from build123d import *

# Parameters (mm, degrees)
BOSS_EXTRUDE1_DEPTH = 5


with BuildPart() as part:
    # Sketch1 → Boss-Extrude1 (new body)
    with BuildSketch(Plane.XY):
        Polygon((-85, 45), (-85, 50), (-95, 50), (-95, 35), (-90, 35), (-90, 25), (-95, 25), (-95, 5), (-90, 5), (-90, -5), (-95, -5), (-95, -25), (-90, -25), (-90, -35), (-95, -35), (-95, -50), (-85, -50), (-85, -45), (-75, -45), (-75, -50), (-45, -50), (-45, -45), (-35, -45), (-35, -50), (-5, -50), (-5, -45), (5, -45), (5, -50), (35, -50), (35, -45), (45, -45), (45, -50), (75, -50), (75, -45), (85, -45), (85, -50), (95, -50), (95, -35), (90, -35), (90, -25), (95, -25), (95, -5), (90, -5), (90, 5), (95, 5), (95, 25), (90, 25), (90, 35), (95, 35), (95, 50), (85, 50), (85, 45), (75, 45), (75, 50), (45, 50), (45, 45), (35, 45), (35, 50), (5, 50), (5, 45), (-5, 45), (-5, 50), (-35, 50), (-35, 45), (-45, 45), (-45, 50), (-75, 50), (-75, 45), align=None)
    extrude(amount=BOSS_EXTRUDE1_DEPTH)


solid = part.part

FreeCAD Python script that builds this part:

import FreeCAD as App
import Part
import Sketcher

doc = App.newDocument("Part")
body = doc.addObject("PartDesign::Body", "Body")

sketch1 = body.newObject("Sketcher::SketchObject", "Sketch")
sketch1.AttachmentSupport = (doc.getObject("XY_Plane"), [""])
sketch1.MapMode = "FlatFace"
sketch1.addGeometry(Part.LineSegment(App.Vector(-85, 45, 0), App.Vector(-85, 50, 0)), False)
sketch1.addGeometry(Part.LineSegment(App.Vector(-85, 50, 0), App.Vector(-95, 50, 0)), False)
sketch1.addGeometry(Part.LineSegment(App.Vector(-95, 50, 0), App.Vector(-95, 35, 0)), False)
sketch1.addGeometry(Part.LineSegment(App.Vector(-95, 35, 0), App.Vector(-90, 35, 0)), False)
sketch1.addGeometry(Part.LineSegment(App.Vector(-90, 35, 0), App.Vector(-90, 25, 0)), False)
sketch1.addGeometry(Part.LineSegment(App.Vector(-90, 25, 0), App.Vector(-95, 25, 0)), False)
sketch1.addGeometry(Part.LineSegment(App.Vector(-95, 25, 0), App.Vector(-95, 5, 0)), False)
sketch1.addGeometry(Part.LineSegment(App.Vector(-95, 5, 0), App.Vector(-90, 5, 0)), False)
sketch1.addGeometry(Part.LineSegment(App.Vector(-90, 5, 0), App.Vector(-90, -5, 0)), False)
sketch1.addGeometry(Part.LineSegment(App.Vector(-90, -5, 0), App.Vector(-95, -5, 0)), False)
sketch1.addGeometry(Part.LineSegment(App.Vector(-95, -5, 0), App.Vector(-95, -25, 0)), False)
sketch1.addGeometry(Part.LineSegment(App.Vector(-95, -25, 0), App.Vector(-90, -25, 0)), False)
sketch1.addGeometry(Part.LineSegment(App.Vector(-90, -25, 0), App.Vector(-90, -35, 0)), False)
sketch1.addGeometry(Part.LineSegment(App.Vector(-90, -35, 0), App.Vector(-95, -35, 0)), False)
sketch1.addGeometry(Part.LineSegment(App.Vector(-95, -35, 0), App.Vector(-95, -50, 0)), False)
sketch1.addGeometry(Part.LineSegment(App.Vector(-95, -50, 0), App.Vector(-85, -50, 0)), False)
sketch1.addGeometry(Part.LineSegment(App.Vector(-85, -50, 0), App.Vector(-85, -45, 0)), False)
sketch1.addGeometry(Part.LineSegment(App.Vector(-85, -45, 0), App.Vector(-75, -45, 0)), False)
sketch1.addGeometry(Part.LineSegment(App.Vector(-75, -45, 0), App.Vector(-75, -50, 0)), False)
sketch1.addGeometry(Part.LineSegment(App.Vector(-75, -50, 0), App.Vector(-45, -50, 0)), False)
sketch1.addGeometry(Part.LineSegment(App.Vector(-45, -50, 0), App.Vector(-45, -45, 0)), False)
sketch1.addGeometry(Part.LineSegment(App.Vector(-45, -45, 0), App.Vector(-35, -45, 0)), False)
sketch1.addGeometry(Part.LineSegment(App.Vector(-35, -45, 0), App.Vector(-35, -50, 0)), False)
sketch1.addGeometry(Part.LineSegment(App.Vector(-35, -50, 0), App.Vector(-5, -50, 0)), False)
sketch1.addGeometry(Part.LineSegment(App.Vector(-5, -50, 0), App.Vector(-5, -45, 0)), False)
sketch1.addGeometry(Part.LineSegment(App.Vector(-5, -45, 0), App.Vector(5, -45, 0)), False)
sketch1.addGeometry(Part.LineSegment(App.Vector(5, -45, 0), App.Vector(5, -50, 0)), False)
sketch1.addGeometry(Part.LineSegment(App.Vector(5, -50, 0), App.Vector(35, -50, 0)), False)
sketch1.addGeometry(Part.LineSegment(App.Vector(35, -50, 0), App.Vector(35, -45, 0)), False)
sketch1.addGeometry(Part.LineSegment(App.Vector(35, -45, 0), App.Vector(45, -45, 0)), False)
sketch1.addGeometry(Part.LineSegment(App.Vector(45, -45, 0), App.Vector(45, -50, 0)), False)
sketch1.addGeometry(Part.LineSegment(App.Vector(45, -50, 0), App.Vector(75, -50, 0)), False)
sketch1.addGeometry(Part.LineSegment(App.Vector(75, -50, 0), App.Vector(75, -45, 0)), False)
sketch1.addGeometry(Part.LineSegment(App.Vector(75, -45, 0), App.Vector(85, -45, 0)), False)
sketch1.addGeometry(Part.LineSegment(App.Vector(85, -45, 0), App.Vector(85, -50, 0)), False)
sketch1.addGeometry(Part.LineSegment(App.Vector(85, -50, 0), App.Vector(95, -50, 0)), False)
sketch1.addGeometry(Part.LineSegment(App.Vector(95, -50, 0), App.Vector(95, -35, 0)), False)
sketch1.addGeometry(Part.LineSegment(App.Vector(95, -35, 0), App.Vector(90, -35, 0)), False)
sketch1.addGeometry(Part.LineSegment(App.Vector(90, -35, 0), App.Vector(90, -25, 0)), False)
sketch1.addGeometry(Part.LineSegment(App.Vector(90, -25, 0), App.Vector(95, -25, 0)), False)
sketch1.addGeometry(Part.LineSegment(App.Vector(95, -25, 0), App.Vector(95, -5, 0)), False)
sketch1.addGeometry(Part.LineSegment(App.Vector(95, -5, 0), App.Vector(90, -5, 0)), False)
sketch1.addGeometry(Part.LineSegment(App.Vector(90, -5, 0), App.Vector(90, 5, 0)), False)
sketch1.addGeometry(Part.LineSegment(App.Vector(90, 5, 0), App.Vector(95, 5, 0)), False)
sketch1.addGeometry(Part.LineSegment(App.Vector(95, 5, 0), App.Vector(95, 25, 0)), False)
sketch1.addGeometry(Part.LineSegment(App.Vector(95, 25, 0), App.Vector(90, 25, 0)), False)
sketch1.addGeometry(Part.LineSegment(App.Vector(90, 25, 0), App.Vector(90, 35, 0)), False)
sketch1.addGeometry(Part.LineSegment(App.Vector(90, 35, 0), App.Vector(95, 35, 0)), False)
sketch1.addGeometry(Part.LineSegment(App.Vector(95, 35, 0), App.Vector(95, 50, 0)), False)
sketch1.addGeometry(Part.LineSegment(App.Vector(95, 50, 0), App.Vector(85, 50, 0)), False)
sketch1.addGeometry(Part.LineSegment(App.Vector(85, 50, 0), App.Vector(85, 45, 0)), False)
sketch1.addGeometry(Part.LineSegment(App.Vector(85, 45, 0), App.Vector(75, 45, 0)), False)
sketch1.addGeometry(Part.LineSegment(App.Vector(75, 45, 0), App.Vector(75, 50, 0)), False)
sketch1.addGeometry(Part.LineSegment(App.Vector(75, 50, 0), App.Vector(45, 50, 0)), False)
sketch1.addGeometry(Part.LineSegment(App.Vector(45, 50, 0), App.Vector(45, 45, 0)), False)
sketch1.addGeometry(Part.LineSegment(App.Vector(45, 45, 0), App.Vector(35, 45, 0)), False)
sketch1.addGeometry(Part.LineSegment(App.Vector(35, 45, 0), App.Vector(35, 50, 0)), False)
sketch1.addGeometry(Part.LineSegment(App.Vector(35, 50, 0), App.Vector(5, 50, 0)), False)
sketch1.addGeometry(Part.LineSegment(App.Vector(5, 50, 0), App.Vector(5, 45, 0)), False)
sketch1.addGeometry(Part.LineSegment(App.Vector(5, 45, 0), App.Vector(-5, 45, 0)), False)
sketch1.addGeometry(Part.LineSegment(App.Vector(-5, 45, 0), App.Vector(-5, 50, 0)), False)
sketch1.addGeometry(Part.LineSegment(App.Vector(-5, 50, 0), App.Vector(-35, 50, 0)), False)
sketch1.addGeometry(Part.LineSegment(App.Vector(-35, 50, 0), App.Vector(-35, 45, 0)), False)
sketch1.addGeometry(Part.LineSegment(App.Vector(-35, 45, 0), App.Vector(-45, 45, 0)), False)
sketch1.addGeometry(Part.LineSegment(App.Vector(-45, 45, 0), App.Vector(-45, 50, 0)), False)
sketch1.addGeometry(Part.LineSegment(App.Vector(-45, 50, 0), App.Vector(-75, 50, 0)), False)
sketch1.addGeometry(Part.LineSegment(App.Vector(-75, 50, 0), App.Vector(-75, 45, 0)), False)
sketch1.addGeometry(Part.LineSegment(App.Vector(-75, 45, 0), App.Vector(-85, 45, 0)), False)
sketch1.addConstraint(Sketcher.Constraint("Coincident", 0, 2, 1, 1))
sketch1.addConstraint(Sketcher.Constraint("Coincident", 1, 2, 2, 1))
sketch1.addConstraint(Sketcher.Constraint("Coincident", 2, 2, 3, 1))
sketch1.addConstraint(Sketcher.Constraint("Coincident", 3, 2, 4, 1))
sketch1.addConstraint(Sketcher.Constraint("Coincident", 4, 2, 5, 1))
sketch1.addConstraint(Sketcher.Constraint("Coincident", 5, 2, 6, 1))
sketch1.addConstraint(Sketcher.Constraint("Coincident", 6, 2, 7, 1))
sketch1.addConstraint(Sketcher.Constraint("Coincident", 7, 2, 8, 1))
sketch1.addConstraint(Sketcher.Constraint("Coincident", 8, 2, 9, 1))
sketch1.addConstraint(Sketcher.Constraint("Coincident", 9, 2, 10, 1))
sketch1.addConstraint(Sketcher.Constraint("Coincident", 10, 2, 11, 1))
sketch1.addConstraint(Sketcher.Constraint("Coincident", 11, 2, 12, 1))
sketch1.addConstraint(Sketcher.Constraint("Coincident", 12, 2, 13, 1))
sketch1.addConstraint(Sketcher.Constraint("Coincident", 13, 2, 14, 1))
sketch1.addConstraint(Sketcher.Constraint("Coincident", 14, 2, 15, 1))
sketch1.addConstraint(Sketcher.Constraint("Coincident", 15, 2, 16, 1))
sketch1.addConstraint(Sketcher.Constraint("Coincident", 16, 2, 17, 1))
sketch1.addConstraint(Sketcher.Constraint("Coincident", 17, 2, 18, 1))
sketch1.addConstraint(Sketcher.Constraint("Coincident", 18, 2, 19, 1))
sketch1.addConstraint(Sketcher.Constraint("Coincident", 19, 2, 20, 1))
sketch1.addConstraint(Sketcher.Constraint("Coincident", 20, 2, 21, 1))
sketch1.addConstraint(Sketcher.Constraint("Coincident", 21, 2, 22, 1))
sketch1.addConstraint(Sketcher.Constraint("Coincident", 22, 2, 23, 1))
sketch1.addConstraint(Sketcher.Constraint("Coincident", 23, 2, 24, 1))
sketch1.addConstraint(Sketcher.Constraint("Coincident", 24, 2, 25, 1))
sketch1.addConstraint(Sketcher.Constraint("Coincident", 25, 2, 26, 1))
sketch1.addConstraint(Sketcher.Constraint("Coincident", 26, 2, 27, 1))
sketch1.addConstraint(Sketcher.Constraint("Coincident", 27, 2, 28, 1))
sketch1.addConstraint(Sketcher.Constraint("Coincident", 28, 2, 29, 1))
sketch1.addConstraint(Sketcher.Constraint("Coincident", 29, 2, 30, 1))
sketch1.addConstraint(Sketcher.Constraint("Coincident", 30, 2, 31, 1))
sketch1.addConstraint(Sketcher.Constraint("Coincident", 31, 2, 32, 1))
sketch1.addConstraint(Sketcher.Constraint("Coincident", 32, 2, 33, 1))
sketch1.addConstraint(Sketcher.Constraint("Coincident", 33, 2, 34, 1))
sketch1.addConstraint(Sketcher.Constraint("Coincident", 34, 2, 35, 1))
sketch1.addConstraint(Sketcher.Constraint("Coincident", 35, 2, 36, 1))
sketch1.addConstraint(Sketcher.Constraint("Coincident", 36, 2, 37, 1))
sketch1.addConstraint(Sketcher.Constraint("Coincident", 37, 2, 38, 1))
sketch1.addConstraint(Sketcher.Constraint("Coincident", 38, 2, 39, 1))
sketch1.addConstraint(Sketcher.Constraint("Coincident", 39, 2, 40, 1))
sketch1.addConstraint(Sketcher.Constraint("Coincident", 40, 2, 41, 1))
sketch1.addConstraint(Sketcher.Constraint("Coincident", 41, 2, 42, 1))
sketch1.addConstraint(Sketcher.Constraint("Coincident", 42, 2, 43, 1))
sketch1.addConstraint(Sketcher.Constraint("Coincident", 43, 2, 44, 1))
sketch1.addConstraint(Sketcher.Constraint("Coincident", 44, 2, 45, 1))
sketch1.addConstraint(Sketcher.Constraint("Coincident", 45, 2, 46, 1))
sketch1.addConstraint(Sketcher.Constraint("Coincident", 46, 2, 47, 1))
sketch1.addConstraint(Sketcher.Constraint("Coincident", 47, 2, 48, 1))
sketch1.addConstraint(Sketcher.Constraint("Coincident", 48, 2, 49, 1))
sketch1.addConstraint(Sketcher.Constraint("Coincident", 49, 2, 50, 1))
sketch1.addConstraint(Sketcher.Constraint("Coincident", 50, 2, 51, 1))
sketch1.addConstraint(Sketcher.Constraint("Coincident", 51, 2, 52, 1))
sketch1.addConstraint(Sketcher.Constraint("Coincident", 52, 2, 53, 1))
sketch1.addConstraint(Sketcher.Constraint("Coincident", 53, 2, 54, 1))
sketch1.addConstraint(Sketcher.Constraint("Coincident", 54, 2, 55, 1))
sketch1.addConstraint(Sketcher.Constraint("Coincident", 55, 2, 56, 1))
sketch1.addConstraint(Sketcher.Constraint("Coincident", 56, 2, 57, 1))
sketch1.addConstraint(Sketcher.Constraint("Coincident", 57, 2, 58, 1))
sketch1.addConstraint(Sketcher.Constraint("Coincident", 58, 2, 59, 1))
sketch1.addConstraint(Sketcher.Constraint("Coincident", 59, 2, 60, 1))
sketch1.addConstraint(Sketcher.Constraint("Coincident", 60, 2, 61, 1))
sketch1.addConstraint(Sketcher.Constraint("Coincident", 61, 2, 62, 1))
sketch1.addConstraint(Sketcher.Constraint("Coincident", 62, 2, 63, 1))
sketch1.addConstraint(Sketcher.Constraint("Coincident", 63, 2, 64, 1))
sketch1.addConstraint(Sketcher.Constraint("Coincident", 64, 2, 65, 1))
sketch1.addConstraint(Sketcher.Constraint("Coincident", 65, 2, 66, 1))
sketch1.addConstraint(Sketcher.Constraint("Coincident", 66, 2, 67, 1))
sketch1.addConstraint(Sketcher.Constraint("Coincident", 67, 2, 0, 1))
sketch1.addConstraint(Sketcher.Constraint("Vertical", 0))
sketch1.addConstraint(Sketcher.Constraint("Horizontal", 1))
sketch1.addConstraint(Sketcher.Constraint("Vertical", 2))
sketch1.addConstraint(Sketcher.Constraint("Horizontal", 3))
sketch1.addConstraint(Sketcher.Constraint("Vertical", 4))
sketch1.addConstraint(Sketcher.Constraint("Horizontal", 5))
sketch1.addConstraint(Sketcher.Constraint("Vertical", 6))
sketch1.addConstraint(Sketcher.Constraint("Horizontal", 7))
sketch1.addConstraint(Sketcher.Constraint("Vertical", 8))
sketch1.addConstraint(Sketcher.Constraint("Horizontal", 9))
sketch1.addConstraint(Sketcher.Constraint("Vertical", 10))
sketch1.addConstraint(Sketcher.Constraint("Horizontal", 11))
sketch1.addConstraint(Sketcher.Constraint("Vertical", 12))
sketch1.addConstraint(Sketcher.Constraint("Horizontal", 13))
sketch1.addConstraint(Sketcher.Constraint("Vertical", 14))
sketch1.addConstraint(Sketcher.Constraint("Horizontal", 15))
sketch1.addConstraint(Sketcher.Constraint("Vertical", 16))
sketch1.addConstraint(Sketcher.Constraint("Horizontal", 17))
sketch1.addConstraint(Sketcher.Constraint("Vertical", 18))
sketch1.addConstraint(Sketcher.Constraint("Horizontal", 19))
sketch1.addConstraint(Sketcher.Constraint("Vertical", 20))
sketch1.addConstraint(Sketcher.Constraint("Horizontal", 21))
sketch1.addConstraint(Sketcher.Constraint("Vertical", 22))
sketch1.addConstraint(Sketcher.Constraint("Horizontal", 23))
sketch1.addConstraint(Sketcher.Constraint("Vertical", 24))
sketch1.addConstraint(Sketcher.Constraint("Horizontal", 25))
sketch1.addConstraint(Sketcher.Constraint("Vertical", 26))
sketch1.addConstraint(Sketcher.Constraint("Horizontal", 27))
sketch1.addConstraint(Sketcher.Constraint("Vertical", 28))
sketch1.addConstraint(Sketcher.Constraint("Horizontal", 29))
sketch1.addConstraint(Sketcher.Constraint("Vertical", 30))
sketch1.addConstraint(Sketcher.Constraint("Horizontal", 31))
sketch1.addConstraint(Sketcher.Constraint("Vertical", 32))
sketch1.addConstraint(Sketcher.Constraint("Horizontal", 33))
sketch1.addConstraint(Sketcher.Constraint("Vertical", 34))
sketch1.addConstraint(Sketcher.Constraint("Horizontal", 35))
sketch1.addConstraint(Sketcher.Constraint("Vertical", 36))
sketch1.addConstraint(Sketcher.Constraint("Horizontal", 37))
sketch1.addConstraint(Sketcher.Constraint("Vertical", 38))
sketch1.addConstraint(Sketcher.Constraint("Horizontal", 39))
sketch1.addConstraint(Sketcher.Constraint("Vertical", 40))
sketch1.addConstraint(Sketcher.Constraint("Horizontal", 41))
sketch1.addConstraint(Sketcher.Constraint("Vertical", 42))
sketch1.addConstraint(Sketcher.Constraint("Horizontal", 43))
sketch1.addConstraint(Sketcher.Constraint("Vertical", 44))
sketch1.addConstraint(Sketcher.Constraint("Horizontal", 45))
sketch1.addConstraint(Sketcher.Constraint("Vertical", 46))
sketch1.addConstraint(Sketcher.Constraint("Horizontal", 47))
sketch1.addConstraint(Sketcher.Constraint("Vertical", 48))
sketch1.addConstraint(Sketcher.Constraint("Horizontal", 49))
sketch1.addConstraint(Sketcher.Constraint("Vertical", 50))
sketch1.addConstraint(Sketcher.Constraint("Horizontal", 51))
sketch1.addConstraint(Sketcher.Constraint("Vertical", 52))
sketch1.addConstraint(Sketcher.Constraint("Horizontal", 53))
sketch1.addConstraint(Sketcher.Constraint("Vertical", 54))
sketch1.addConstraint(Sketcher.Constraint("Horizontal", 55))
sketch1.addConstraint(Sketcher.Constraint("Vertical", 56))
sketch1.addConstraint(Sketcher.Constraint("Horizontal", 57))
sketch1.addConstraint(Sketcher.Constraint("Vertical", 58))
sketch1.addConstraint(Sketcher.Constraint("Horizontal", 59))
sketch1.addConstraint(Sketcher.Constraint("Vertical", 60))
sketch1.addConstraint(Sketcher.Constraint("Horizontal", 61))
sketch1.addConstraint(Sketcher.Constraint("Vertical", 62))
sketch1.addConstraint(Sketcher.Constraint("Horizontal", 63))
sketch1.addConstraint(Sketcher.Constraint("Vertical", 64))
sketch1.addConstraint(Sketcher.Constraint("Horizontal", 65))
sketch1.addConstraint(Sketcher.Constraint("Vertical", 66))
sketch1.addConstraint(Sketcher.Constraint("Horizontal", 67))
sketch1.addConstraint(Sketcher.Constraint("Symmetric", 0, 2, 34, 2, -1, 1))
sketch1.addConstraint(Sketcher.Constraint("Symmetric", 2, 2, 36, 2, -1, 1))
sketch1.addConstraint(Sketcher.Constraint("Symmetric", 4, 2, 38, 2, -1, 1))
sketch1.addConstraint(Sketcher.Constraint("Symmetric", 6, 2, 40, 2, -1, 1))
sketch1.addConstraint(Sketcher.Constraint("Symmetric", 8, 2, 42, 2, -1, 1))
sketch1.addConstraint(Sketcher.Constraint("Symmetric", 10, 2, 44, 2, -1, 1))
sketch1.addConstraint(Sketcher.Constraint("Symmetric", 12, 2, 46, 2, -1, 1))
sketch1.addConstraint(Sketcher.Constraint("Symmetric", 14, 2, 48, 2, -1, 1))
sketch1.addConstraint(Sketcher.Constraint("Symmetric", 16, 2, 50, 2, -1, 1))
sketch1.addConstraint(Sketcher.Constraint("Symmetric", 18, 2, 52, 2, -1, 1))
sketch1.addConstraint(Sketcher.Constraint("Symmetric", 20, 2, 54, 2, -1, 1))
sketch1.addConstraint(Sketcher.Constraint("Symmetric", 22, 2, 56, 2, -1, 1))
sketch1.addConstraint(Sketcher.Constraint("Symmetric", 24, 2, 58, 2, -1, 1))
sketch1.addConstraint(Sketcher.Constraint("Symmetric", 26, 2, 60, 2, -1, 1))
sketch1.addConstraint(Sketcher.Constraint("Symmetric", 28, 2, 62, 2, -1, 1))
sketch1.addConstraint(Sketcher.Constraint("Symmetric", 30, 2, 64, 2, -1, 1))
sketch1.addConstraint(Sketcher.Constraint("Symmetric", 32, 2, 66, 2, -1, 1))
sketch1.addConstraint(Sketcher.Constraint("Symmetric", 23, 2, 26, 2, -2))
sketch1.addConstraint(Sketcher.Constraint("Symmetric", 21, 2, 28, 2, -2))
sketch1.addConstraint(Sketcher.Constraint("Symmetric", 19, 2, 30, 2, -2))
sketch1.addConstraint(Sketcher.Constraint("Symmetric", 17, 2, 32, 2, -2))
sketch1.addConstraint(Sketcher.Constraint("Symmetric", 15, 2, 34, 2, -2))
sketch1.addConstraint(Sketcher.Constraint("Symmetric", 13, 2, 36, 2, -2))
sketch1.addConstraint(Sketcher.Constraint("Symmetric", 11, 2, 38, 2, -2))
sketch1.addConstraint(Sketcher.Constraint("Symmetric", 9, 2, 40, 2, -2))
sketch1.addConstraint(Sketcher.Constraint("Horizontal", 15, 2, 18, 2))
sketch1.addConstraint(Sketcher.Constraint("Horizontal", 17, 2, 20, 2))
sketch1.addConstraint(Sketcher.Constraint("Horizontal", 19, 2, 22, 2))
sketch1.addConstraint(Sketcher.Constraint("Horizontal", 21, 2, 24, 2))
sketch1.addConstraint(Sketcher.Constraint("Vertical", 2, 2, 5, 2))
sketch1.addConstraint(Sketcher.Constraint("Vertical", 4, 2, 7, 2))
sketch1.addConstraint(Sketcher.Constraint("Equal", 15, 17))
sketch1.addConstraint(Sketcher.Constraint("Equal", 17, 21))
sketch1.addConstraint(Sketcher.Constraint("Equal", 19, 23))
sketch1.addConstraint(Sketcher.Constraint("Equal", 21, 25))
sketch1.addConstraint(Sketcher.Constraint("Equal", 47, 0))
sketch1.addConstraint(Sketcher.Constraint("Equal", 67, 4))
sketch1.addConstraint(Sketcher.Constraint("Equal", 4, 8))
sketch1.addConstraint(Sketcher.Constraint("DistanceX", 1, 2, 1, 1, 10.0))
sketch1.addConstraint(Sketcher.Constraint("DistanceX", 3, 1, 3, 2, 5.0))
sketch1.addConstraint(Sketcher.Constraint("DistanceX", 19, 1, 19, 2, 30.0))
sketch1.addConstraint(Sketcher.Constraint("DistanceY", 2, 2, 2, 1, 15.0))
sketch1.addConstraint(Sketcher.Constraint("DistanceY", 6, 2, 6, 1, 20.0))
pad1 = body.newObject("PartDesign::Pad", "Pad")
pad1.Profile = sketch1
pad1.Length = 5

doc.recompute()
